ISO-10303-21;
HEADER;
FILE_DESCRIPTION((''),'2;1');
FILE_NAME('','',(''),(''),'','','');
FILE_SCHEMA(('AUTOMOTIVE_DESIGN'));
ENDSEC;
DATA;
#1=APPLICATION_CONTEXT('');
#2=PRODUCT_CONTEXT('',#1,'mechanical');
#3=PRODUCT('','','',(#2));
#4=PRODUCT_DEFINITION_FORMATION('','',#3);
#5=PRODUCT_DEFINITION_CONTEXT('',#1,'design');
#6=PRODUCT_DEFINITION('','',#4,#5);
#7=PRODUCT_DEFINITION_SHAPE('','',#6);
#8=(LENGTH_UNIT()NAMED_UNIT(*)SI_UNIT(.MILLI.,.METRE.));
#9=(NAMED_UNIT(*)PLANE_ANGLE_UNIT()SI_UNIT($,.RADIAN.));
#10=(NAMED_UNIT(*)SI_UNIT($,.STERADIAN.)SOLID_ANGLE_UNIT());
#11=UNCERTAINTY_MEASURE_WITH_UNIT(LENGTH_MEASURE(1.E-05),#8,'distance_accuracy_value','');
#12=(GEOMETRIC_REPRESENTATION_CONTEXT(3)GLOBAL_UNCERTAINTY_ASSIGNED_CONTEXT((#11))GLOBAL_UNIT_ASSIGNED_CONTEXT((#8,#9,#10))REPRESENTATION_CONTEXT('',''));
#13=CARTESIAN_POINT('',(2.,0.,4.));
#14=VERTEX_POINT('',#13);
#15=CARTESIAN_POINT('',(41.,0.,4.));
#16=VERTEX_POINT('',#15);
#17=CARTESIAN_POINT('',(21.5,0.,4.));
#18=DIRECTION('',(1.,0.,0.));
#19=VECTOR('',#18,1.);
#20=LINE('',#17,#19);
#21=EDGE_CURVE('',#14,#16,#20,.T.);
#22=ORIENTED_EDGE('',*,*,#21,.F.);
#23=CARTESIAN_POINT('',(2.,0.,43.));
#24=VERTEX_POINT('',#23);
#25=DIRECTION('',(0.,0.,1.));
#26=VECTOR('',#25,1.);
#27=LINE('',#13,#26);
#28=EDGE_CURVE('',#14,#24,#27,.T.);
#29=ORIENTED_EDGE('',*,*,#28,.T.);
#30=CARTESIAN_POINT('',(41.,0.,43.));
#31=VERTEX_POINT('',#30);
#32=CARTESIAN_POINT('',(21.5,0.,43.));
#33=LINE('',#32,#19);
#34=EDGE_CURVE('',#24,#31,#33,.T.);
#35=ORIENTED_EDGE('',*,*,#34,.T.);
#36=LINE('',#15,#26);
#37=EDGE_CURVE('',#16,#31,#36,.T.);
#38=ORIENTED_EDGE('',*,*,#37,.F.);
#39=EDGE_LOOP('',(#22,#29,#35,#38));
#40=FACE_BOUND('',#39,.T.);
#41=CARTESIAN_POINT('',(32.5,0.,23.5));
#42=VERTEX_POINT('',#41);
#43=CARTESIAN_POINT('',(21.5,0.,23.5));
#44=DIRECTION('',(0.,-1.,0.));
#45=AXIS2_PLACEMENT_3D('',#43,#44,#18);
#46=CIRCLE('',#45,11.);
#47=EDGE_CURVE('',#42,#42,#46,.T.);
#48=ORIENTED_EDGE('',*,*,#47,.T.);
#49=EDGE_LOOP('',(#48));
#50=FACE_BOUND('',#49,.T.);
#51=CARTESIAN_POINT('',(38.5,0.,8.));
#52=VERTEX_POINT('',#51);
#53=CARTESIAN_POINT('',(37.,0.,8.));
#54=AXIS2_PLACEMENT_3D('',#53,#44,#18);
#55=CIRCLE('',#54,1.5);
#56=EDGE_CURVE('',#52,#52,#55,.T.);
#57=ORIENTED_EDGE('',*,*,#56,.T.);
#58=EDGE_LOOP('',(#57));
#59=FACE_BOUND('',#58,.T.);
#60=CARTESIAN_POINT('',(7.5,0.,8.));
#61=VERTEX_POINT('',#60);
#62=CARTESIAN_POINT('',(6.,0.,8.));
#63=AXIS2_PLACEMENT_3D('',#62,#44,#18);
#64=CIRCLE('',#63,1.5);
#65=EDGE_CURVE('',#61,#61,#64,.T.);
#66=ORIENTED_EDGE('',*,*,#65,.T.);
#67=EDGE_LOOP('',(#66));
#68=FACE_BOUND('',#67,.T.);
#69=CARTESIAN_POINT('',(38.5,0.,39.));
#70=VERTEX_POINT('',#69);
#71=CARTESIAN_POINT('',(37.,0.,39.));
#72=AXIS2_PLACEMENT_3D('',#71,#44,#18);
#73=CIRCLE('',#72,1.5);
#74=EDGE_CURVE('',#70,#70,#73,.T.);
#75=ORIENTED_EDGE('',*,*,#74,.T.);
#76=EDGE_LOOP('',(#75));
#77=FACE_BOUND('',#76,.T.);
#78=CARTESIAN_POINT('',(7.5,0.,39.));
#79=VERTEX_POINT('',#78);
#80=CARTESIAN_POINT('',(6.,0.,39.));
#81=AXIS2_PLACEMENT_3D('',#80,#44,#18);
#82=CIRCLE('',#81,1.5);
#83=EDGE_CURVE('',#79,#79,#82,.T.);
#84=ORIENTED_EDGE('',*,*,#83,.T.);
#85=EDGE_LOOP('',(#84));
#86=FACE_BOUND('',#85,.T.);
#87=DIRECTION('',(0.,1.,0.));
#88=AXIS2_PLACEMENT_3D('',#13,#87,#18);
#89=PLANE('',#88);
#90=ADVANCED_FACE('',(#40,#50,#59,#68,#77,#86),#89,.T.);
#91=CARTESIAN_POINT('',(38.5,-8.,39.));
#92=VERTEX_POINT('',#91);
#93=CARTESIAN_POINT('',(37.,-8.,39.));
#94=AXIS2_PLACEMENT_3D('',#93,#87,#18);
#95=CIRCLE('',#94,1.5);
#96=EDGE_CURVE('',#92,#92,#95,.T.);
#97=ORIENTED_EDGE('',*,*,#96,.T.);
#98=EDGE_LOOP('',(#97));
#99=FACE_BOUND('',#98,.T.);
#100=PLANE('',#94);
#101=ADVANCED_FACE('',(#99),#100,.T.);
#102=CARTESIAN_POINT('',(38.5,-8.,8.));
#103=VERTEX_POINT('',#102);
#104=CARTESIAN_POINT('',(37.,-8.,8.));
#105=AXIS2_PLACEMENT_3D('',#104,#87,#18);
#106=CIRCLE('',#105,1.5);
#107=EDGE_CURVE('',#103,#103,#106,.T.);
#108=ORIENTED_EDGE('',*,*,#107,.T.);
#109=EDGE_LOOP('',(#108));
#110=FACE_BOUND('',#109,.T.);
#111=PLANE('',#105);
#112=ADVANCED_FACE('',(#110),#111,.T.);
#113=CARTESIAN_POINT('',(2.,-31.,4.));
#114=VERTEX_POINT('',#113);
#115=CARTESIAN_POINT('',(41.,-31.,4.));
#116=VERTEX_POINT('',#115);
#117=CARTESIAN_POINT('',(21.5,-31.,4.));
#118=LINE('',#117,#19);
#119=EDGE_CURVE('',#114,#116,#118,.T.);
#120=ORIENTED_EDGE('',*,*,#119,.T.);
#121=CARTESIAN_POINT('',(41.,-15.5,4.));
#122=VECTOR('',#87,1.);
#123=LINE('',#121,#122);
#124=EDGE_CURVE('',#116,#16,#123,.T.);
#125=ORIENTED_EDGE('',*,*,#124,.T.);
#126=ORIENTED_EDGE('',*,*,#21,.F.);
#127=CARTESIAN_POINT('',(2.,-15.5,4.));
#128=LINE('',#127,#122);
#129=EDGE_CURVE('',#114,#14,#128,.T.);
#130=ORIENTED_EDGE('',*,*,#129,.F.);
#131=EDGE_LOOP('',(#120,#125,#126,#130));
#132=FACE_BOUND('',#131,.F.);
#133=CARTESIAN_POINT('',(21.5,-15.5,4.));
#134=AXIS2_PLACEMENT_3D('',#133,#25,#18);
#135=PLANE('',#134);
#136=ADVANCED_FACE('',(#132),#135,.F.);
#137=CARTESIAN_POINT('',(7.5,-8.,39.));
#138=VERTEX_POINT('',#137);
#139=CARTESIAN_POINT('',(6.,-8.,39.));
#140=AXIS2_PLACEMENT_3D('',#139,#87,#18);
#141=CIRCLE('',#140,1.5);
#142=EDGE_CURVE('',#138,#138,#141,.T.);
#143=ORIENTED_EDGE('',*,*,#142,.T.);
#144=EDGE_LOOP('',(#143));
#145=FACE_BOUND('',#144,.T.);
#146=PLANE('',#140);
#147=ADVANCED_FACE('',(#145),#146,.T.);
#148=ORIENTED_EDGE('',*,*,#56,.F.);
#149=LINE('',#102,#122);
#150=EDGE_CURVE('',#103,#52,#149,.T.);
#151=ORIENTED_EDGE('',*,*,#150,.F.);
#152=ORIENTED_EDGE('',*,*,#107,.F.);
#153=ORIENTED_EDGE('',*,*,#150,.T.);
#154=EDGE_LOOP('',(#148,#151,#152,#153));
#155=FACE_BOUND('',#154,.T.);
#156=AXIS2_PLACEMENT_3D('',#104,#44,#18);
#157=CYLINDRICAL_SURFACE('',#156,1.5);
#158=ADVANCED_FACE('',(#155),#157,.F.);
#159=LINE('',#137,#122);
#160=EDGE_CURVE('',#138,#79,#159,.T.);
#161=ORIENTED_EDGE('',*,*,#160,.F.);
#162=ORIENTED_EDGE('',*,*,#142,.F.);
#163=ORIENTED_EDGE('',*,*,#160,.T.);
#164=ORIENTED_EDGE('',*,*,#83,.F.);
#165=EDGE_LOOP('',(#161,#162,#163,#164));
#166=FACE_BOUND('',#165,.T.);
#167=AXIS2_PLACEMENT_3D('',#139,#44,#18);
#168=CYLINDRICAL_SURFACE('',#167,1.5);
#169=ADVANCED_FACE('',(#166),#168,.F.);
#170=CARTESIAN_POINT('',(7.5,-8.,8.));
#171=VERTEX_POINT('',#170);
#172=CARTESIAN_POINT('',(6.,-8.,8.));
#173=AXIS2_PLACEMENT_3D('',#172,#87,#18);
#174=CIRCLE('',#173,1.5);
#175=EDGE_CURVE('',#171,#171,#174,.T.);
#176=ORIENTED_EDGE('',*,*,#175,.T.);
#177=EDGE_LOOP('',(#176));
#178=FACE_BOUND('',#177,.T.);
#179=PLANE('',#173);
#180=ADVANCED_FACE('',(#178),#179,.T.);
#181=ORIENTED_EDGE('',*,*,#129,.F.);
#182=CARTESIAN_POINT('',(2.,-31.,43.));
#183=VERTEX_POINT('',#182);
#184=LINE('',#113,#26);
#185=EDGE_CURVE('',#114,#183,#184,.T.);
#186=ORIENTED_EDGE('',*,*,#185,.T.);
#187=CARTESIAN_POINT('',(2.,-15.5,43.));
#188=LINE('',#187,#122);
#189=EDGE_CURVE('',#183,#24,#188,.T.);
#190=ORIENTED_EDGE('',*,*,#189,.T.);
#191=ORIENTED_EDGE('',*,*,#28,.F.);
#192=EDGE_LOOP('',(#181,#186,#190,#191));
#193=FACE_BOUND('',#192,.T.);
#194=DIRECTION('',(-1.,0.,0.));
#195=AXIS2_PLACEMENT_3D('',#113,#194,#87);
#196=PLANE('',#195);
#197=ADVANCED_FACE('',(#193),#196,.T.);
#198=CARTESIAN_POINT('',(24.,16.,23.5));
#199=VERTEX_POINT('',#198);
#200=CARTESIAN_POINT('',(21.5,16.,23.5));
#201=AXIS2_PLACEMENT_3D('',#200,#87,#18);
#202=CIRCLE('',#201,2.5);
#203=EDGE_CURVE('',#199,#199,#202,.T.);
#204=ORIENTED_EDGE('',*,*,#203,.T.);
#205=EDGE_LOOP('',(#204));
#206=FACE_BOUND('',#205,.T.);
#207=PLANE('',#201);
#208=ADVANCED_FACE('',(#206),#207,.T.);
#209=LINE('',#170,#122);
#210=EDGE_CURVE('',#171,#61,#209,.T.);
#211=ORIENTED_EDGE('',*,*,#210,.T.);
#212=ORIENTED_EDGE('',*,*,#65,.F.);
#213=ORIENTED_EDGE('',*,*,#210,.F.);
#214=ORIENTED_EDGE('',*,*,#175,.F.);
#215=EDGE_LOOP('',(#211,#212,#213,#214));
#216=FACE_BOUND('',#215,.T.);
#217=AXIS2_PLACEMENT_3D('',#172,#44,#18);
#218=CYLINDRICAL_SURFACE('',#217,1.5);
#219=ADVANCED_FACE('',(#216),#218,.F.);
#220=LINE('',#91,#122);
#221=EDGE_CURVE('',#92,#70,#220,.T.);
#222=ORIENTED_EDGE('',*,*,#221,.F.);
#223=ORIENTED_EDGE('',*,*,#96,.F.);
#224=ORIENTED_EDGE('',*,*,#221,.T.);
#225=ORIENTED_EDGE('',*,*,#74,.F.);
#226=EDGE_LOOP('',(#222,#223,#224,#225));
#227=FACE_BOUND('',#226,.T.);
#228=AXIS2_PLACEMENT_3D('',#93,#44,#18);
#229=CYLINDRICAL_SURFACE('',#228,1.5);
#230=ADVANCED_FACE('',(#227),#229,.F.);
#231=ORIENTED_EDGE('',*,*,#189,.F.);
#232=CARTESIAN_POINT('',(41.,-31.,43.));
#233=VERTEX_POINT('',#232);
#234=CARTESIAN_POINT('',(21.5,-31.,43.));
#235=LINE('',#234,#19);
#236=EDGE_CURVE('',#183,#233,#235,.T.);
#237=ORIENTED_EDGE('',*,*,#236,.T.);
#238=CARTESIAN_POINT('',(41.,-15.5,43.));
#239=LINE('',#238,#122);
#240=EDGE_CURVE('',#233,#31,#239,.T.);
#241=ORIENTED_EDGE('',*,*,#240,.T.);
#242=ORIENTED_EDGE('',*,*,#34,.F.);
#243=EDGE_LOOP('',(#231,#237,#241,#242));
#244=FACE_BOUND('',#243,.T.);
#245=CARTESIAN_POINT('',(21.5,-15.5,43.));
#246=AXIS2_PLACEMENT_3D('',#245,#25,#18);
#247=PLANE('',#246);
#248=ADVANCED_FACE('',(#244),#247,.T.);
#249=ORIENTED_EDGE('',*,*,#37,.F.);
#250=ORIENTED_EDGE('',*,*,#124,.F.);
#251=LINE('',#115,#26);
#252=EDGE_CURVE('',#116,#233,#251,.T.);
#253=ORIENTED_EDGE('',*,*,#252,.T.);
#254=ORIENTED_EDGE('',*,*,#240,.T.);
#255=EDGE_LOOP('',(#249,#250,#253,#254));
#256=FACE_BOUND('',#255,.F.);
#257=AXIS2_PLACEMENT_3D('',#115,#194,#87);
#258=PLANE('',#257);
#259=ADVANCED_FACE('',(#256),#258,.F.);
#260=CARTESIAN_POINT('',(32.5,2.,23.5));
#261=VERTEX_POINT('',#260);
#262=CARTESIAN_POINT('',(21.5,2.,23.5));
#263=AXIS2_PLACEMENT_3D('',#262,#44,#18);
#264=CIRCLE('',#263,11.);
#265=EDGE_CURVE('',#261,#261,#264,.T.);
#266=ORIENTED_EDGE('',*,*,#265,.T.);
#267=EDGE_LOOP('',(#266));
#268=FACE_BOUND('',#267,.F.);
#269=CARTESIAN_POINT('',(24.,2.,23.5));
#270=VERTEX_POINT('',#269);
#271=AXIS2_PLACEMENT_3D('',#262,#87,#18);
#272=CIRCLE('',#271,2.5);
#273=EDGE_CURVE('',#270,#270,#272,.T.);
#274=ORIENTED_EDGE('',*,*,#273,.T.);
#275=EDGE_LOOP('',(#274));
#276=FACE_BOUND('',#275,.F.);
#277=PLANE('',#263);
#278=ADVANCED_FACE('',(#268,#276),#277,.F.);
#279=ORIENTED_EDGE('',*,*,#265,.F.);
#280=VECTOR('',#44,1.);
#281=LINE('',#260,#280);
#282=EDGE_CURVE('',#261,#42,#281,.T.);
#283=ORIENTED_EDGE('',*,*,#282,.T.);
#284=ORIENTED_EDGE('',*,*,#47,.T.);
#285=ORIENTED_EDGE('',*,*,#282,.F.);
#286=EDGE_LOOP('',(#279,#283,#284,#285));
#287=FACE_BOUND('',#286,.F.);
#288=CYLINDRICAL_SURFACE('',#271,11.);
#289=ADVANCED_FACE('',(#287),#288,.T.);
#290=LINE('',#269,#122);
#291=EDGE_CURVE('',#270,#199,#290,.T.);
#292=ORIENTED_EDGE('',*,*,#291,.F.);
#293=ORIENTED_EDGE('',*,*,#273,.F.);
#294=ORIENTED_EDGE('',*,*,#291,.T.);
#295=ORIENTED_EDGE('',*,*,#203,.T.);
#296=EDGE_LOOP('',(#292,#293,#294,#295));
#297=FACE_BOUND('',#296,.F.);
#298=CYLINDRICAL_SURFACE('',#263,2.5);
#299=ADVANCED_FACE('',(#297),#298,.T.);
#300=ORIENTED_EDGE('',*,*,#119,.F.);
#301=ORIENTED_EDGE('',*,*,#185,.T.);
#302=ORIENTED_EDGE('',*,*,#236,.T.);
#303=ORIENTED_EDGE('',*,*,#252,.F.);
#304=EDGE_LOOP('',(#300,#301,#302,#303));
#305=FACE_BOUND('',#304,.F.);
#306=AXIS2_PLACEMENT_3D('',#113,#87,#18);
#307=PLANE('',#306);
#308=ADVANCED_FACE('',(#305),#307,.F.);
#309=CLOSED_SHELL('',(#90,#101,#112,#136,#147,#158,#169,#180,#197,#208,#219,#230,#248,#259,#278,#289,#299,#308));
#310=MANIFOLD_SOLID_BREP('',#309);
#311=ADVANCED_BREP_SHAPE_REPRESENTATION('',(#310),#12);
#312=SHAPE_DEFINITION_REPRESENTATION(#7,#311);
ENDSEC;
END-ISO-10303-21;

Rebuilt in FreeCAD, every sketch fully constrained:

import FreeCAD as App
import Part
import Sketcher
Q = App.Units.Quantity


def add_polygon(sketch, points):
    """Adds a closed chain of lines whose ends are joined by coincident constraints."""
    first, n = sketch.GeometryCount, len(points)
    for a, b in zip(points, points[1:] + points[:1]):
        sketch.addGeometry(Part.LineSegment(App.Vector(*a, 0), App.Vector(*b, 0)), False)
    for i in range(n):
        sketch.addConstraint(Sketcher.Constraint("Coincident", first + i, 2, first + (i + 1) % n, 1))

doc = App.newDocument("Part")
body = doc.addObject("PartDesign::Body", "Body")

sketch1 = body.newObject("Sketcher::SketchObject", "Sketch")
sketch1.AttachmentSupport = (doc.getObject("XZ_Plane"), [""])
sketch1.MapMode = "FlatFace"
sketch1.AttachmentOffset = App.Placement(App.Vector(0, 0, -33), App.Rotation())
sketch1.addGeometry(Part.Circle(App.Vector(19.5, 19.5, 0), App.Vector(0, 0, 1), 11), False)
sketch1.addConstraint(Sketcher.Constraint("Diameter", 0, Q("22 mm")))
sketch1.addConstraint(Sketcher.Constraint("DistanceX", -1, 1, 0, 3, Q("19.5 mm")))
sketch1.addConstraint(Sketcher.Constraint("DistanceY", -1, 1, 0, 3, Q("19.5 mm")))
pad1 = body.newObject("PartDesign::Pad", "Pad")
pad1.Profile = sketch1
pad1.Length = 2
body2 = doc.addObject("PartDesign::Body", "Body001")

sketch2 = body2.newObject("Sketcher::SketchObject", "Sketch001")
sketch2.AttachmentSupport = (doc.getObject("XZ_Plane001"), [""])
sketch2.MapMode = "FlatFace"
sketch2.AttachmentOffset = App.Placement(App.Vector(0, 0, -33), App.Rotation())
sketch2.addGeometry(Part.Circle(App.Vector(19.5, 19.5, 0), App.Vector(0, 0, 1), 2.5), False)
sketch2.addConstraint(Sketcher.Constraint("Diameter", 0, Q("5 mm")))
sketch2.addConstraint(Sketcher.Constraint("DistanceX", -1, 1, 0, 3, Q("19.5 mm")))
sketch2.addConstraint(Sketcher.Constraint("DistanceY", -1, 1, 0, 3, Q("19.5 mm")))
pad2 = body2.newObject("PartDesign::Pad", "Pad001")
pad2.Profile = sketch2
pad2.Length = 14
pad2.Reversed = True
body3 = doc.addObject("PartDesign::Body", "Body002")

sketch3 = body3.newObject("Sketcher::SketchObject", "Sketch002")
sketch3.AttachmentSupport = (doc.getObject("XZ_Plane002"), [""])
sketch3.MapMode = "FlatFace"
sketch3.AttachmentOffset = App.Placement(App.Vector(0, 0, -23), App.Rotation())
sketch3.addGeometry(Part.Circle(App.Vector(35, 35, 0), App.Vector(0, 0, 1), 1.5), False)
sketch3.addConstraint(Sketcher.Constraint("Diameter", 0, Q("3 mm")))
sketch3.addConstraint(Sketcher.Constraint("DistanceX", -1, 1, 0, 3, Q("35 mm")))
sketch3.addConstraint(Sketcher.Constraint("DistanceY", -1, 1, 0, 3, Q("35 mm")))
pad3 = body3.newObject("PartDesign::Pad", "Pad002")
pad3.Profile = sketch3
pad3.Length = 10
pad3.Reversed = True
body4 = doc.addObject("PartDesign::Body", "Body003")

sketch4 = body4.newObject("Sketcher::SketchObject", "Sketch003")
sketch4.AttachmentSupport = (doc.getObject("XZ_Plane003"), [""])
sketch4.MapMode = "FlatFace"
sketch4.AttachmentOffset = App.Placement(App.Vector(0, 0, -23), App.Rotation())
sketch4.addGeometry(Part.Circle(App.Vector(35, 4, 0), App.Vector(0, 0, 1), 1.5), False)
sketch4.addConstraint(Sketcher.Constraint("Diameter", 0, Q("3 mm")))
sketch4.addConstraint(Sketcher.Constraint("DistanceX", -1, 1, 0, 3, Q("35 mm")))
sketch4.addConstraint(Sketcher.Constraint("DistanceY", -1, 1, 0, 3, Q("4 mm")))
pad4 = body4.newObject("PartDesign::Pad", "Pad003")
pad4.Profile = sketch4
pad4.Length = 10
pad4.Reversed = True
body5 = doc.addObject("PartDesign::Body", "Body004")

sketch5 = body5.newObject("Sketcher::SketchObject", "Sketch004")
sketch5.AttachmentSupport = (doc.getObject("XZ_Plane004"), [""])
sketch5.MapMode = "FlatFace"
sketch5.AttachmentOffset = App.Placement(App.Vector(0, 0, -23), App.Rotation())
sketch5.addGeometry(Part.Circle(App.Vector(4, 4, 0), App.Vector(0, 0, 1), 1.5), False)
sketch5.addConstraint(Sketcher.Constraint("Diameter", 0, Q("3 mm")))
sketch5.addConstraint(Sketcher.Constraint("DistanceX", -1, 1, 0, 3, Q("4 mm")))
sketch5.addConstraint(Sketcher.Constraint("DistanceY", -1, 1, 0, 3, Q("4 mm")))
pad5 = body5.newObject("PartDesign::Pad", "Pad004")
pad5.Profile = sketch5
pad5.Length = 10
pad5.Reversed = True
body6 = doc.addObject("PartDesign::Body", "Body005")

sketch6 = body6.newObject("Sketcher::SketchObject", "Sketch005")
sketch6.AttachmentSupport = (doc.getObject("XZ_Plane005"), [""])
sketch6.MapMode = "FlatFace"
sketch6.AttachmentOffset = App.Placement(App.Vector(0, 0, -23), App.Rotation())
sketch6.addGeometry(Part.Circle(App.Vector(4, 35, 0), App.Vector(0, 0, 1), 1.5), False)
sketch6.addConstraint(Sketcher.Constraint("Diameter", 0, Q("3 mm")))
sketch6.addConstraint(Sketcher.Constraint("DistanceX", -1, 1, 0, 3, Q("4 mm")))
sketch6.addConstraint(Sketcher.Constraint("DistanceY", -1, 1, 0, 3, Q("35 mm")))
pad6 = body6.newObject("PartDesign::Pad", "Pad005")
pad6.Profile = sketch6
pad6.Length = 10
pad6.Reversed = True
body7 = doc.addObject("PartDesign::Body", "Body006")

sketch7 = body7.newObject("Sketcher::SketchObject", "Sketch006")
sketch7.AttachmentSupport = (doc.getObject("XY_Plane006"), [""])
sketch7.MapMode = "FlatFace"
add_polygon(sketch7, [(0, 31), (0, 0), (39, 0), (39, 31)])
sketch7.addConstraint(Sketcher.Constraint("Vertical", 0))
sketch7.addConstraint(Sketcher.Constraint("Horizontal", 1))
sketch7.addConstraint(Sketcher.Constraint("Vertical", 2))
sketch7.addConstraint(Sketcher.Constraint("Horizontal", 3))
sketch7.addConstraint(Sketcher.Constraint("Coincident", 0, 2, -1, 1))
sketch7.addConstraint(Sketcher.Constraint("DistanceX", 1, 1, 1, 2, Q("39 mm")))
sketch7.addConstraint(Sketcher.Constraint("DistanceY", 0, 2, 0, 1, Q("31 mm")))
pad7 = body7.newObject("PartDesign::Pad", "Pad006")
pad7.Profile = sketch7
pad7.Length = 39
doc.recompute()

boolean = body7.newObject("PartDesign::Boolean", "Boolean")
boolean.Type = "Cut"
boolean.addObjects([body6])
doc.recompute()

boolean2 = body7.newObject("PartDesign::Boolean", "Boolean001")
boolean2.Type = "Cut"
boolean2.addObjects([body5])
doc.recompute()

boolean3 = body7.newObject("PartDesign::Boolean", "Boolean002")
boolean3.Type = "Cut"
boolean3.addObjects([body4])
doc.recompute()

boolean4 = body7.newObject("PartDesign::Boolean", "Boolean003")
boolean4.Type = "Cut"
boolean4.addObjects([body3])
doc.recompute()

boolean5 = body7.newObject("PartDesign::Boolean", "Boolean004")
boolean5.Type = "Fuse"
boolean5.addObjects([body])
doc.recompute()

boolean6 = body7.newObject("PartDesign::Boolean", "Boolean005")
boolean6.Type = "Fuse"
boolean6.addObjects([body2])
body8 = doc.addObject("PartDesign::Body", "Body007")
doc.recompute()

body7.Placement = App.Placement(App.Vector(2, -31, 4), App.Rotation(App.Vector(0, 0, 1), 0))
boolean7 = body8.newObject("PartDesign::Boolean", "Boolean006")
boolean7.Type = "Fuse"
boolean7.addObjects([body7])

doc.recompute()
